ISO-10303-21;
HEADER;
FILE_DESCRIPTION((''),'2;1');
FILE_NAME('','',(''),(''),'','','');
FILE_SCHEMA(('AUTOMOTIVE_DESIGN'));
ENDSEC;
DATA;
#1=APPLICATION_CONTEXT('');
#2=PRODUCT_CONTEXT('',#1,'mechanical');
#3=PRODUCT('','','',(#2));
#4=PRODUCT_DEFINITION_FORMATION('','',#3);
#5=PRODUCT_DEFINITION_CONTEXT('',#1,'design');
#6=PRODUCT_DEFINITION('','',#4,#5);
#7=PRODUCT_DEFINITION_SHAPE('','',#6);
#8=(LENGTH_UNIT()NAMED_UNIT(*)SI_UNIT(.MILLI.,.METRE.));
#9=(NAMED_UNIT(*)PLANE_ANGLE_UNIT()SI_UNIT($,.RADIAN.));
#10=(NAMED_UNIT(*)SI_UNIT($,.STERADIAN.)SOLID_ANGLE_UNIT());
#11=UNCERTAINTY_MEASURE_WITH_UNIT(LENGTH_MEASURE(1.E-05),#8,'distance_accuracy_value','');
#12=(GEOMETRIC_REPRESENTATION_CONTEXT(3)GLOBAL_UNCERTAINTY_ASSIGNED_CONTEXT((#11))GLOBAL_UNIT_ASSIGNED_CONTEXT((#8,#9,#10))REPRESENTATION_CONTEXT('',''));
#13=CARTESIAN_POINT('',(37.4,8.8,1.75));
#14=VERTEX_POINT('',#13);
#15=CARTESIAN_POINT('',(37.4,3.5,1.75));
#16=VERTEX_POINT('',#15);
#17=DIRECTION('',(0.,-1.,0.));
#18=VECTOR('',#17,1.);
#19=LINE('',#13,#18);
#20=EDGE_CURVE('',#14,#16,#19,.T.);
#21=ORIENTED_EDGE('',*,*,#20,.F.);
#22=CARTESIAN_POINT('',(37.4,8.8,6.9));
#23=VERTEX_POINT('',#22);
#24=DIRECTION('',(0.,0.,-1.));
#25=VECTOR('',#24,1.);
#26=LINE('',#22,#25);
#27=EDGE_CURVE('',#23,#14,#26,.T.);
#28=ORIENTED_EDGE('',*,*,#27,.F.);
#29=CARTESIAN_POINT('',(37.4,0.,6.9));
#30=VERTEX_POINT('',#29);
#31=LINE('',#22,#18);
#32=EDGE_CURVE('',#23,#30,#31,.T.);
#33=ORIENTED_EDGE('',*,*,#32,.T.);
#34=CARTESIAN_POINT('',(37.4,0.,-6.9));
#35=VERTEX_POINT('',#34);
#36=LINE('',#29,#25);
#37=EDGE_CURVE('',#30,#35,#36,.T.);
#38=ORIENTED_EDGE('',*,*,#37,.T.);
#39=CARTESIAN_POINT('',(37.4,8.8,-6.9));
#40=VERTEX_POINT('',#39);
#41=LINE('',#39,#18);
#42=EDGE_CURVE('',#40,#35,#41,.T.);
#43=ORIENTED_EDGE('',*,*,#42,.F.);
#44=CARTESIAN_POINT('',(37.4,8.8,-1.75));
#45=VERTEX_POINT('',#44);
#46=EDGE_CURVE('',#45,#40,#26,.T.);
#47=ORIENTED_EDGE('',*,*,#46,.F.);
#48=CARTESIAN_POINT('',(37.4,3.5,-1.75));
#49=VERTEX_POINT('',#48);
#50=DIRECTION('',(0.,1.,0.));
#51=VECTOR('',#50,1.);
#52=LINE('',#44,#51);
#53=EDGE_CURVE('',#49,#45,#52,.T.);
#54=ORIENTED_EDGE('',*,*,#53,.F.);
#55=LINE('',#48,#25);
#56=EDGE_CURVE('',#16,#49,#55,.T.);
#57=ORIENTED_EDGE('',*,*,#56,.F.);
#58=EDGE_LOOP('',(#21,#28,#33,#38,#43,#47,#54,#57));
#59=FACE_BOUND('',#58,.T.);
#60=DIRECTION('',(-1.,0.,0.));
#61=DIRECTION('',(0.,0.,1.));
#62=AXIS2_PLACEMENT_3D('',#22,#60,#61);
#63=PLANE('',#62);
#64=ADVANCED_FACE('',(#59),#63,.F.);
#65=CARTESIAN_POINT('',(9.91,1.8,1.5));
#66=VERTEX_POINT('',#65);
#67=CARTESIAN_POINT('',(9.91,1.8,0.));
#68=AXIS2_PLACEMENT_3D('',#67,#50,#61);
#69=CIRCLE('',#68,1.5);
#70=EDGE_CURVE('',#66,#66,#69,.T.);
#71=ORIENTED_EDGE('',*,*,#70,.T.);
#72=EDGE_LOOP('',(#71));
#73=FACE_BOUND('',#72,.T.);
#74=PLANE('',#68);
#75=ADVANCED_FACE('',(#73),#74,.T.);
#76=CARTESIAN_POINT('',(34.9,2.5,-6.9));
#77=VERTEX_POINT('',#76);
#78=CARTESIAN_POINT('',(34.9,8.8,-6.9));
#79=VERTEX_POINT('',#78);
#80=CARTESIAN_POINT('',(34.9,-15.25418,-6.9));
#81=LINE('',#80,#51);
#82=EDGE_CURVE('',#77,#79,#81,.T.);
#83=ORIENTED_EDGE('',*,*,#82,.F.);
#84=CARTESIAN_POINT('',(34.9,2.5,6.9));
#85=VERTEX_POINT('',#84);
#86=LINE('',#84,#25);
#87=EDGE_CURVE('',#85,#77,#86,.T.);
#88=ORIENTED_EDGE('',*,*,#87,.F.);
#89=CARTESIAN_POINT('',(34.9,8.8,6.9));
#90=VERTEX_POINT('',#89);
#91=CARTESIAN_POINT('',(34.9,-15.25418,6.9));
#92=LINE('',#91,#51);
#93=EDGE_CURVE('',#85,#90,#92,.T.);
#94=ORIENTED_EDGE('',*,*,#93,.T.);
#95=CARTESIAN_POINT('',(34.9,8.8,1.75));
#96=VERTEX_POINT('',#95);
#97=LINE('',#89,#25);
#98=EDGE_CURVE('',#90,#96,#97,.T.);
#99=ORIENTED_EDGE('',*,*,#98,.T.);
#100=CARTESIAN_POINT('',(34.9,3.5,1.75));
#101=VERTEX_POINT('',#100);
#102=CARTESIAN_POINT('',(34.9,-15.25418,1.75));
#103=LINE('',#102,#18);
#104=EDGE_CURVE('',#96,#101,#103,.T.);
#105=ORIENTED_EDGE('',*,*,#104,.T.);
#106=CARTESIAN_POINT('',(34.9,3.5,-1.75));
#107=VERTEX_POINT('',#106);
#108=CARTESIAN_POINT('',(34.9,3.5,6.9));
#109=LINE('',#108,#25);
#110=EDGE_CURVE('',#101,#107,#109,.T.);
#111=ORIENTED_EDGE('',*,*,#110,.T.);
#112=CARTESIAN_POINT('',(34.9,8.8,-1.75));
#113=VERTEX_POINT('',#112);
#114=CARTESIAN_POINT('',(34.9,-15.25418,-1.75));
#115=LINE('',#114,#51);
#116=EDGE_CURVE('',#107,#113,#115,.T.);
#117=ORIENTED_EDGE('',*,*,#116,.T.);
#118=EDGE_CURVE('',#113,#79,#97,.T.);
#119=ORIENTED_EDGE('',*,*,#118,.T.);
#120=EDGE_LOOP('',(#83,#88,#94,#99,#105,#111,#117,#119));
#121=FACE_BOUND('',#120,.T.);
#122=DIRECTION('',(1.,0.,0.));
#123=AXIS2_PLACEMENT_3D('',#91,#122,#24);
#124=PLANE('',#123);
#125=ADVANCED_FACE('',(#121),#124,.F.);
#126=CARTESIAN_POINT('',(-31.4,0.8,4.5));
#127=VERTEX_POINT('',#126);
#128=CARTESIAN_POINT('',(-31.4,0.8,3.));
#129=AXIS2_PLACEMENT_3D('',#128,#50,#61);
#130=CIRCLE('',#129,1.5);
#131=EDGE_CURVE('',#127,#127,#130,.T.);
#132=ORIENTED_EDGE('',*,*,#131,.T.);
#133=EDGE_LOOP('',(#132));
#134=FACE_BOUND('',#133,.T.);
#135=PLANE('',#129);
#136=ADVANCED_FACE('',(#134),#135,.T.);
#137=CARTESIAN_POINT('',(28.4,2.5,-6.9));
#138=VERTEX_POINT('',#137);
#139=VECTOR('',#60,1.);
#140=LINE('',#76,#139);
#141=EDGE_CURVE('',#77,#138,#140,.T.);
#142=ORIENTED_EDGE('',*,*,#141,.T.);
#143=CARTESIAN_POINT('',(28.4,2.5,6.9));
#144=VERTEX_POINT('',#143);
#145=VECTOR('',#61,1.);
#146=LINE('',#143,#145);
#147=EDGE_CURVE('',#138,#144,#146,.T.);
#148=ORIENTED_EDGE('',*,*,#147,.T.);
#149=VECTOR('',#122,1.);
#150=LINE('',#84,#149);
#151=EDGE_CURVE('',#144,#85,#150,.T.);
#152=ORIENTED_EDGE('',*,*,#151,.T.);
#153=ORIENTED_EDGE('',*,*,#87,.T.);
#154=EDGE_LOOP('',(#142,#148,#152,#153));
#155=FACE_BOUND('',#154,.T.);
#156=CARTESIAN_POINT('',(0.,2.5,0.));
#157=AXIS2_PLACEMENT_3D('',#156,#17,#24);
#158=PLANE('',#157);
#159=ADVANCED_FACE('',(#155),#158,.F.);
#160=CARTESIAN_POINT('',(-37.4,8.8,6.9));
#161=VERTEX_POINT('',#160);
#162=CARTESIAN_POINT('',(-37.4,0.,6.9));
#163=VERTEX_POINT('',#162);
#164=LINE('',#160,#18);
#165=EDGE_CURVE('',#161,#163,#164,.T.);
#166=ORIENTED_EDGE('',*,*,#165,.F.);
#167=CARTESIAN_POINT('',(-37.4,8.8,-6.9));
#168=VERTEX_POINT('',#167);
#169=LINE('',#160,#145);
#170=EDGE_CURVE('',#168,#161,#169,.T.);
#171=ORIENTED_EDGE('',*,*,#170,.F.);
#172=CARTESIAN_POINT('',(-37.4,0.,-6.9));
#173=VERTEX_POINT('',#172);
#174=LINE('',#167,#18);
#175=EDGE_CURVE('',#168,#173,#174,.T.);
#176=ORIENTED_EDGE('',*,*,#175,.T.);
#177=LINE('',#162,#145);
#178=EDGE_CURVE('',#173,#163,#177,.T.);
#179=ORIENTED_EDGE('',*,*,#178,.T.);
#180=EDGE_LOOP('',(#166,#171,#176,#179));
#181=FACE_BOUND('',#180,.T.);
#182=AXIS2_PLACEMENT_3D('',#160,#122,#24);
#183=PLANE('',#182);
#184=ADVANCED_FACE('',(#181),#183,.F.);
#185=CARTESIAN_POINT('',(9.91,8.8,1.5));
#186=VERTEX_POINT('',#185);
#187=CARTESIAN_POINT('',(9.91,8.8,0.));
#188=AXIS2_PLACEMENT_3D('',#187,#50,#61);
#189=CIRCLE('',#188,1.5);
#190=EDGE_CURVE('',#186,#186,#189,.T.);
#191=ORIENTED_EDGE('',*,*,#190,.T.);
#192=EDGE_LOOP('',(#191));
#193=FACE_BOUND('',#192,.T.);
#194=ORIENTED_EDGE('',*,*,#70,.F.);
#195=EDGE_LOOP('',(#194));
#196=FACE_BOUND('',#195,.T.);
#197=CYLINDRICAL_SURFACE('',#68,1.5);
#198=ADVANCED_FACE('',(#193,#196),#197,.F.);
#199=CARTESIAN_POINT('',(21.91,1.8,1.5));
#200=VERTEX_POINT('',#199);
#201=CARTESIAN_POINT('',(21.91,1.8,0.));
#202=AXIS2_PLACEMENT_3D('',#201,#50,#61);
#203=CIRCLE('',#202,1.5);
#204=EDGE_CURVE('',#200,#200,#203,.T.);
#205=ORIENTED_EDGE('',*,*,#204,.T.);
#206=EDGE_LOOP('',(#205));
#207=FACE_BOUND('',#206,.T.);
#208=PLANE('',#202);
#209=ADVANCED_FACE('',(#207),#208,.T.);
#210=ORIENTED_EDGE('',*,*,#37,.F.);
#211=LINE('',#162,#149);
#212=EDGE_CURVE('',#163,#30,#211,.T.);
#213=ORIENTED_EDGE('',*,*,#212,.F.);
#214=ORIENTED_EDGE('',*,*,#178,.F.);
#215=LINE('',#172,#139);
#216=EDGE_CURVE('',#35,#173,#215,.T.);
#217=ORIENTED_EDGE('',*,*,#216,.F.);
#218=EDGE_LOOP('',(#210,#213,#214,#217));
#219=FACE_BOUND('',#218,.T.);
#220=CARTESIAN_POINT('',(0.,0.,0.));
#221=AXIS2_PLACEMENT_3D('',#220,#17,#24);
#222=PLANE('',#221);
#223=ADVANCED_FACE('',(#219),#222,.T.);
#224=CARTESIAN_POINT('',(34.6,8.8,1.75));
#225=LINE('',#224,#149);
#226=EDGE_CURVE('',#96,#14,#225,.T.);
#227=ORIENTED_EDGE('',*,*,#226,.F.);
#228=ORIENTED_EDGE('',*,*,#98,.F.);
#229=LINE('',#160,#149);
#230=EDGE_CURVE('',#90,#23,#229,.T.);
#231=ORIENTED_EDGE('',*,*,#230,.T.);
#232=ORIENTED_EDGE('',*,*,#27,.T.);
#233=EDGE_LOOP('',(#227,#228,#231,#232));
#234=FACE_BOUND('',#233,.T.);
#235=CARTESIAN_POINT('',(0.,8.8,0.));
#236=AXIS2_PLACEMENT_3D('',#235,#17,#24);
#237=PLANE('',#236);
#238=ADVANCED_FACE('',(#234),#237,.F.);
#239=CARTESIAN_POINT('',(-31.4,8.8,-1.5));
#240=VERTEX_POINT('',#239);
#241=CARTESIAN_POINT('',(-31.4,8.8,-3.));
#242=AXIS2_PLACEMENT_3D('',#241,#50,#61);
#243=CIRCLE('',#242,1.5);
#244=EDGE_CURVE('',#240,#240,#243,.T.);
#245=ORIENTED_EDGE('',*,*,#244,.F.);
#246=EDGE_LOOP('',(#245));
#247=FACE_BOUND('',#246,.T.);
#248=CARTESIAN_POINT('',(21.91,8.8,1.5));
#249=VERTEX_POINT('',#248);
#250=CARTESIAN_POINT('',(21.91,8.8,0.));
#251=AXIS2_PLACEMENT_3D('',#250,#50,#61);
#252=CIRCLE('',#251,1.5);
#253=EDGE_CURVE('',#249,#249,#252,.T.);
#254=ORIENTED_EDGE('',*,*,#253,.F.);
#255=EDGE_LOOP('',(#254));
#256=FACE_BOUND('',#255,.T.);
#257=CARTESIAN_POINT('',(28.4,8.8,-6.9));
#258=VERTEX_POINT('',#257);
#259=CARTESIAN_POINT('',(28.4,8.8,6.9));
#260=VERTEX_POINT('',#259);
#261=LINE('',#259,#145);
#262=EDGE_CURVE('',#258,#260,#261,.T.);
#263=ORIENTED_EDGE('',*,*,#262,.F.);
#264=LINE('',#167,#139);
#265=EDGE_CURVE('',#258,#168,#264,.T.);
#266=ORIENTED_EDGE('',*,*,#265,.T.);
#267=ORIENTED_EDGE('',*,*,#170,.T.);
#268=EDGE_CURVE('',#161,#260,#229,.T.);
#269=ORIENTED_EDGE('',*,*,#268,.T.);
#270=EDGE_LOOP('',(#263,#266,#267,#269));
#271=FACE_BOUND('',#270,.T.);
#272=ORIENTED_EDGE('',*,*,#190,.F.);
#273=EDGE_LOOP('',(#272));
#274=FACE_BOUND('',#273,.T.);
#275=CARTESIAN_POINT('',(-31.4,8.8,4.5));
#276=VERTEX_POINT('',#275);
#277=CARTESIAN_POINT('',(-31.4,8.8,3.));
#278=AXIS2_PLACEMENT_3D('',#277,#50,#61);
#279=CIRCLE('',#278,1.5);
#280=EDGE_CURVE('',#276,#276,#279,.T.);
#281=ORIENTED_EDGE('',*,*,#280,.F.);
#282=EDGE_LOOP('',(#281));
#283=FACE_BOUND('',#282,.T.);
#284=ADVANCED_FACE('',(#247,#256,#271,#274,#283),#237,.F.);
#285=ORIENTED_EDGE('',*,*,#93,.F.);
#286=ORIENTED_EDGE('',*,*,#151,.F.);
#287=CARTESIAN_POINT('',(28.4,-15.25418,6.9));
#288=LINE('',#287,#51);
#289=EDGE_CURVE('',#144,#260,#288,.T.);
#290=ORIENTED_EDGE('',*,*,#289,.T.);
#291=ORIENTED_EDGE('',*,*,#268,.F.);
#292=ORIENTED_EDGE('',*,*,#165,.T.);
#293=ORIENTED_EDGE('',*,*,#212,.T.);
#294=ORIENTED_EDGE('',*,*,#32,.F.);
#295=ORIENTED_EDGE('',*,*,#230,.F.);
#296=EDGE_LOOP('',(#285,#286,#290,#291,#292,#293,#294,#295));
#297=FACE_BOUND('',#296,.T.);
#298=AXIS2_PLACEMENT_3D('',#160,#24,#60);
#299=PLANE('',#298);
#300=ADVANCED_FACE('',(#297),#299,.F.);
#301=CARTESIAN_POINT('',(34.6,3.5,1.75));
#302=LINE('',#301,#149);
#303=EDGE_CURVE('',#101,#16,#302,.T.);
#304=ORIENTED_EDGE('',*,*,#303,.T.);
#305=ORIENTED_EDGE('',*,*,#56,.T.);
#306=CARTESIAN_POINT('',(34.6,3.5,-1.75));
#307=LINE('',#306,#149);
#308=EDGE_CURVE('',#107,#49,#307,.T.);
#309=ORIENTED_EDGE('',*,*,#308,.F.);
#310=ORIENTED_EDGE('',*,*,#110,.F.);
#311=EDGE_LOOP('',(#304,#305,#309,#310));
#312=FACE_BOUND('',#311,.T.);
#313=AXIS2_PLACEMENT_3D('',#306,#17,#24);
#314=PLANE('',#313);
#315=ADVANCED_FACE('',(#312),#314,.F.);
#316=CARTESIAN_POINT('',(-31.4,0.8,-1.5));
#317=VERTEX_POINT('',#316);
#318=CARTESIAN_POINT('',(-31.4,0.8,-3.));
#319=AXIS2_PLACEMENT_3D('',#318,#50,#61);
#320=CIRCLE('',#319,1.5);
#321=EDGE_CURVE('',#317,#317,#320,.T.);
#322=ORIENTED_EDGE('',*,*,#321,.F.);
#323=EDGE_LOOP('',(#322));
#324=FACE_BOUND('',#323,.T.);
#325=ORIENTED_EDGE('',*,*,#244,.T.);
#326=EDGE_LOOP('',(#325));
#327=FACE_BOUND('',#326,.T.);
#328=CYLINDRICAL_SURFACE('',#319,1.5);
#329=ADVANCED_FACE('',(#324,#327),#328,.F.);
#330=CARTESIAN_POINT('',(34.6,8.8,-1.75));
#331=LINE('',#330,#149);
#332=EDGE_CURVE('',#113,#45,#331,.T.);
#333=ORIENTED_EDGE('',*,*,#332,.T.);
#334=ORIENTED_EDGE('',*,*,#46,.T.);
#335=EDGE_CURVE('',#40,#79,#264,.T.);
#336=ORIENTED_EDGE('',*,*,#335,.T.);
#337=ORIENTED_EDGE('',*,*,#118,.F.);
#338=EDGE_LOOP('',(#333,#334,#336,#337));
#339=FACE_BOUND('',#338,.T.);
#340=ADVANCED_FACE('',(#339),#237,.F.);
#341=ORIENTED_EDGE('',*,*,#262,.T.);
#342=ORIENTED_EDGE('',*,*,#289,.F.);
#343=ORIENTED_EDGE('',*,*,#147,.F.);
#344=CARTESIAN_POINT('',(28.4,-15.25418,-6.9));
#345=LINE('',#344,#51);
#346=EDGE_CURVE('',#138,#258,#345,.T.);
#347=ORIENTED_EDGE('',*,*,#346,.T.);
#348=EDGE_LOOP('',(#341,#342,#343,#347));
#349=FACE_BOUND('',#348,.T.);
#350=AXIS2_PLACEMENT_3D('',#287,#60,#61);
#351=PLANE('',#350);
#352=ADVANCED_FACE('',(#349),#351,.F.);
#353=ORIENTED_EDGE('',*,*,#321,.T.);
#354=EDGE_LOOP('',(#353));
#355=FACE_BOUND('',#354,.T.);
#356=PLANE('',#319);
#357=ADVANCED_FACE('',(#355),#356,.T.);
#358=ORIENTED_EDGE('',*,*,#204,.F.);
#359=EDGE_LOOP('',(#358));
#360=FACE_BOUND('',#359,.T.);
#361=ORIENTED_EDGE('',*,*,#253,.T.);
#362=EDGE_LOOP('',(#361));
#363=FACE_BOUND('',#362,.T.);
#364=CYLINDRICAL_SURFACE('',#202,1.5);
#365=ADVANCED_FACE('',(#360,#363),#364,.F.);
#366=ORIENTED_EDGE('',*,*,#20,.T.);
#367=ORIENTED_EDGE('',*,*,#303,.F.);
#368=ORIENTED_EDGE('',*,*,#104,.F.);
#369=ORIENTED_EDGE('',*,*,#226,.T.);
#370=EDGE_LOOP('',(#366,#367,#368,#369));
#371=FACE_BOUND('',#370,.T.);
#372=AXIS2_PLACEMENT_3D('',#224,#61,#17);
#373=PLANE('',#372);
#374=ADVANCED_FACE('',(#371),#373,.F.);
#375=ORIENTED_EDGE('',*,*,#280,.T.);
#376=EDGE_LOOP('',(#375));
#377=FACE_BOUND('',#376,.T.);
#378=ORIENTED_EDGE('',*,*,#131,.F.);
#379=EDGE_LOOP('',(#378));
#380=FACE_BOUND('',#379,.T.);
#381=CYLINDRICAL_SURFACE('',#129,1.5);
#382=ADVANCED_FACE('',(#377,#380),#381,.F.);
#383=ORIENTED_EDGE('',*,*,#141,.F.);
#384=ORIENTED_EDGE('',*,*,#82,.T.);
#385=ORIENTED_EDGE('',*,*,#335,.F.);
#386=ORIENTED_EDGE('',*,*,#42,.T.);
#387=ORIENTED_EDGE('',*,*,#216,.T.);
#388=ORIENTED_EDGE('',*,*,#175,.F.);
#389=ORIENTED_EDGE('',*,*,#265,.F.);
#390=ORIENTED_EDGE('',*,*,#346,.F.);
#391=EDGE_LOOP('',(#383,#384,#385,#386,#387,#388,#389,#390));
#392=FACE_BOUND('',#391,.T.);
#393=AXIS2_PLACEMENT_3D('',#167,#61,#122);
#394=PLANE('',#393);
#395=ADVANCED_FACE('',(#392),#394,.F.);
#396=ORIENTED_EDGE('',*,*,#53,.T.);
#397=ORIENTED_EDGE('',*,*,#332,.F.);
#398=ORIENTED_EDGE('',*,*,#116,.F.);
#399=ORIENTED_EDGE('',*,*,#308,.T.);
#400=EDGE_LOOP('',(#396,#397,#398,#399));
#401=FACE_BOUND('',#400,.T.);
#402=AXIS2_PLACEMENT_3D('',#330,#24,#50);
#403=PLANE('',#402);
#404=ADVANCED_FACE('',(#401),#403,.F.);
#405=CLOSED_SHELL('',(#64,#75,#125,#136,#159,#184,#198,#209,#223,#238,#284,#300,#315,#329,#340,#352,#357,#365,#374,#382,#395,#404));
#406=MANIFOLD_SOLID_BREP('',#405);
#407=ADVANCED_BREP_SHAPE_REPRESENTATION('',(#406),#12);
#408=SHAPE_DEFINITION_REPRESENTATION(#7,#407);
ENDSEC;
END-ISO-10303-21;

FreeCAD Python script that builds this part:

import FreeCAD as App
import Part
import Sketcher
from FreeCAD import Vector

doc = App.newDocument("Part")
params = doc.addObject("Spreadsheet::Sheet", "Params")
for row, (alias, value) in enumerate([
    ("sketch1_width", "74.8 mm"),
    ("sketch1_height", "13.8 mm"),
    ("pad1_length", "8.8 mm"),
    ("sketch2_width", "6.5 mm"),
    ("sketch2_height", "13.8 mm"),
    ("pocket1_length", "6.3 mm"),
    ("sketch3_width", "5.3 mm"),
    ("sketch3_height", "3.5 mm"),
    ("pocket2_length", "2.8 mm"),
    ("sketch4_diameter", "3 mm"),
    ("pocket3_length", "7 mm"),
    ("sketch5_diameter", "3 mm"),
    ("pocket4_length", "8 mm"),
], start=1):
    params.set(f"A{row}", alias)
    params.set(f"B{row}", "=" + value)
    params.setAlias(f"B{row}", alias)

body = doc.addObject("PartDesign::Body", "Body")

sketch1 = body.newObject("Sketcher::SketchObject", "Sketch")
sketch1.AttachmentSupport = (doc.getObject("XZ_Plane"), [""])
sketch1.MapMode = "FlatFace"
sketch1.addGeometry(Part.LineSegment(Vector(-37.4, -6.9, 0), Vector(-37.4, 6.9, 0)), False)
sketch1.addGeometry(Part.LineSegment(Vector(-37.4, 6.9, 0), Vector(37.4, 6.9, 0)), False)
sketch1.addGeometry(Part.LineSegment(Vector(37.4, 6.9, 0), Vector(37.4, -6.9, 0)), False)
sketch1.addGeometry(Part.LineSegment(Vector(37.4, -6.9, 0), Vector(-37.4, -6.9, 0)), False)
sketch1.addConstraint(Sketcher.Constraint("Coincident", 0, 2, 1, 1))
sketch1.addConstraint(Sketcher.Constraint("Coincident", 1, 2, 2, 1))
sketch1.addConstraint(Sketcher.Constraint("Coincident", 2, 2, 3, 1))
sketch1.addConstraint(Sketcher.Constraint("Coincident", 3, 2, 0, 1))
sketch1.addConstraint(Sketcher.Constraint("Vertical", 0))
sketch1.addConstraint(Sketcher.Constraint("Horizontal", 1))
sketch1.addConstraint(Sketcher.Constraint("Vertical", 2))
sketch1.addConstraint(Sketcher.Constraint("Horizontal", 3))
sketch1.addConstraint(Sketcher.Constraint("Symmetric", 0, 2, 2, 2, -1, 1))
sketch1.addConstraint(Sketcher.Constraint("DistanceX", 1, 1, 1, 2, 74.8))
sketch1.addConstraint(Sketcher.Constraint("DistanceY", 0, 1, 0, 2, 13.8))
sketch1.setExpression("Constraints[9]", "Params.sketch1_width")
sketch1.setExpression("Constraints[10]", "Params.sketch1_height")
pad1 = body.newObject("PartDesign::Pad", "Pad")
pad1.Profile = sketch1
pad1.setExpression("Length", "Params.pad1_length")
pad1.Reversed = True

sketch2 = body.newObject("Sketcher::SketchObject", "Sketch001")
sketch2.AttachmentSupport = (doc.getObject("XZ_Plane"), [""])
sketch2.MapMode = "FlatFace"
sketch2.AttachmentOffset = App.Placement(Vector(0, 0, -8.8), App.Rotation())
sketch2.addGeometry(Part.LineSegment(Vector(28.4, -6.9, 0), Vector(28.4, 6.9, 0)), False)
sketch2.addGeometry(Part.LineSegment(Vector(28.4, 6.9, 0), Vector(34.9, 6.9, 0)), False)
sketch2.addGeometry(Part.LineSegment(Vector(34.9, 6.9, 0), Vector(34.9, -6.9, 0)), False)
sketch2.addGeometry(Part.LineSegment(Vector(34.9, -6.9, 0), Vector(28.4, -6.9, 0)), False)
sketch2.addConstraint(Sketcher.Constraint("Coincident", 0, 2, 1, 1))
sketch2.addConstraint(Sketcher.Constraint("Coincident", 1, 2, 2, 1))
sketch2.addConstraint(Sketcher.Constraint("Coincident", 2, 2, 3, 1))
sketch2.addConstraint(Sketcher.Constraint("Coincident", 3, 2, 0, 1))
sketch2.addConstraint(Sketcher.Constraint("Vertical", 0))
sketch2.addConstraint(Sketcher.Constraint("Horizontal", 1))
sketch2.addConstraint(Sketcher.Constraint("Vertical", 2))
sketch2.addConstraint(Sketcher.Constraint("Horizontal", 3))
sketch2.addConstraint(Sketcher.Constraint("DistanceX", 1, 1, 1, 2, 6.5))
sketch2.addConstraint(Sketcher.Constraint("DistanceY", 0, 1, 0, 2, 13.8))
sketch2.addConstraint(Sketcher.Constraint("DistanceX", -1, 1, 0, 2, 28.4))
sketch2.addConstraint(Sketcher.Constraint("DistanceY", -1, 1, 0, 2, 6.9))
sketch2.setExpression("Constraints[8]", "Params.sketch2_width")
sketch2.setExpression("Constraints[9]", "Params.sketch2_height")
pocket1 = body.newObject("PartDesign::Pocket", "Pocket")
pocket1.Profile = sketch2
pocket1.setExpression("Length", "Params.pocket1_length")
pocket1.Reversed = True

sketch3 = body.newObject("Sketcher::SketchObject", "Sketch002")
sketch3.AttachmentSupport = (doc.getObject("YZ_Plane"), [""])
sketch3.MapMode = "FlatFace"
sketch3.AttachmentOffset = App.Placement(Vector(0, 0, 37.4), App.Rotation())
sketch3.addGeometry(Part.LineSegment(Vector(8.8, 1.75, 0), Vector(3.5, 1.75, 0)), False)
sketch3.addGeometry(Part.LineSegment(Vector(3.5, 1.75, 0), Vector(3.5, -1.75, 0)), False)
sketch3.addGeometry(Part.LineSegment(Vector(3.5, -1.75, 0), Vector(8.8, -1.75, 0)), False)
sketch3.addGeometry(Part.LineSegment(Vector(8.8, -1.75, 0), Vector(8.8, 1.75, 0)), False)
sketch3.addConstraint(Sketcher.Constraint("Coincident", 0, 2, 1, 1))
sketch3.addConstraint(Sketcher.Constraint("Coincident", 1, 2, 2, 1))
sketch3.addConstraint(Sketcher.Constraint("Coincident", 2, 2, 3, 1))
sketch3.addConstraint(Sketcher.Constraint("Coincident", 3, 2, 0, 1))
sketch3.addConstraint(Sketcher.Constraint("Horizontal", 0))
sketch3.addConstraint(Sketcher.Constraint("Vertical", 1))
sketch3.addConstraint(Sketcher.Constraint("Horizontal", 2))
sketch3.addConstraint(Sketcher.Constraint("Vertical", 3))
sketch3.addConstraint(Sketcher.Constraint("DistanceX", 0, 2, 0, 1, 5.3))
sketch3.addConstraint(Sketcher.Constraint("DistanceY", 1, 2, 1, 1, 3.5))
sketch3.addConstraint(Sketcher.Constraint("DistanceX", -1, 1, 0, 2, 3.5))
sketch3.addConstraint(Sketcher.Constraint("DistanceY", -1, 1, 0, 2, 1.75))
sketch3.setExpression("Constraints[8]", "Params.sketch3_width")
sketch3.setExpression("Constraints[9]", "Params.sketch3_height")
pocket2 = body.newObject("PartDesign::Pocket", "Pocket001")
pocket2.Profile = sketch3
pocket2.setExpression("Length", "Params.pocket2_length")

sketch4 = body.newObject("Sketcher::SketchObject", "Sketch003")
sketch4.AttachmentSupport = (doc.getObject("XZ_Plane"), [""])
sketch4.MapMode = "FlatFace"
sketch4.AttachmentOffset = App.Placement(Vector(0, 0, -8.8), App.Rotation())
sketch4.addGeometry(Part.Circle(Vector(21.91, 0, 0), Vector(0, 0, 1), 1.5), False)
sketch4.addGeometry(Part.Circle(Vector(9.91, 0, 0), Vector(0, 0, 1), 1.5), False)
sketch4.addConstraint(Sketcher.Constraint("Equal", 0, 1))
sketch4.addConstraint(Sketcher.Constraint("PointOnObject", 0, 3, -1))
sketch4.addConstraint(Sketcher.Constraint("PointOnObject", 1, 3, -1))
sketch4.addConstraint(Sketcher.Constraint("Diameter", 0, 3.0))
sketch4.addConstraint(Sketcher.Constraint("DistanceX", 1, 3, 0, 3, 12.0))
sketch4.addConstraint(Sketcher.Constraint("DistanceX", -1, 1, 0, 3, 21.91))
sketch4.setExpression("Constraints[3]", "Params.sketch4_diameter")
pocket3 = body.newObject("PartDesign::Pocket", "Pocket002")
pocket3.Profile = sketch4
pocket3.setExpression("Length", "Params.pocket3_length")
pocket3.Reversed = True

sketch5 = body.newObject("Sketcher::SketchObject", "Sketch004")
sketch5.AttachmentSupport = (doc.getObject("XZ_Plane"), [""])
sketch5.MapMode = "FlatFace"
sketch5.AttachmentOffset = App.Placement(Vector(0, 0, -8.8), App.Rotation())
sketch5.addGeometry(Part.Circle(Vector(-31.4, -3, 0), Vector(0, 0, 1), 1.5), False)
sketch5.addGeometry(Part.Circle(Vector(-31.4, 3, 0), Vector(0, 0, 1), 1.5), False)
sketch5.addConstraint(Sketcher.Constraint("Equal", 0, 1))
sketch5.addConstraint(Sketcher.Constraint("Symmetric", 0, 3, 1, 3, -1))
sketch5.addConstraint(Sketcher.Constraint("Diameter", 0, 3.0))
sketch5.addConstraint(Sketcher.Constraint("DistanceY", 0, 3, -1, 1, 3.0))
sketch5.addConstraint(Sketcher.Constraint("DistanceX", 0, 3, -1, 1, 31.4))
sketch5.setExpression("Constraints[2]", "Params.sketch5_diameter")
pocket4 = body.newObject("PartDesign::Pocket", "Pocket003")
pocket4.Profile = sketch5
pocket4.setExpression("Length", "Params.pocket4_length")
pocket4.Reversed = True

doc.recompute()
